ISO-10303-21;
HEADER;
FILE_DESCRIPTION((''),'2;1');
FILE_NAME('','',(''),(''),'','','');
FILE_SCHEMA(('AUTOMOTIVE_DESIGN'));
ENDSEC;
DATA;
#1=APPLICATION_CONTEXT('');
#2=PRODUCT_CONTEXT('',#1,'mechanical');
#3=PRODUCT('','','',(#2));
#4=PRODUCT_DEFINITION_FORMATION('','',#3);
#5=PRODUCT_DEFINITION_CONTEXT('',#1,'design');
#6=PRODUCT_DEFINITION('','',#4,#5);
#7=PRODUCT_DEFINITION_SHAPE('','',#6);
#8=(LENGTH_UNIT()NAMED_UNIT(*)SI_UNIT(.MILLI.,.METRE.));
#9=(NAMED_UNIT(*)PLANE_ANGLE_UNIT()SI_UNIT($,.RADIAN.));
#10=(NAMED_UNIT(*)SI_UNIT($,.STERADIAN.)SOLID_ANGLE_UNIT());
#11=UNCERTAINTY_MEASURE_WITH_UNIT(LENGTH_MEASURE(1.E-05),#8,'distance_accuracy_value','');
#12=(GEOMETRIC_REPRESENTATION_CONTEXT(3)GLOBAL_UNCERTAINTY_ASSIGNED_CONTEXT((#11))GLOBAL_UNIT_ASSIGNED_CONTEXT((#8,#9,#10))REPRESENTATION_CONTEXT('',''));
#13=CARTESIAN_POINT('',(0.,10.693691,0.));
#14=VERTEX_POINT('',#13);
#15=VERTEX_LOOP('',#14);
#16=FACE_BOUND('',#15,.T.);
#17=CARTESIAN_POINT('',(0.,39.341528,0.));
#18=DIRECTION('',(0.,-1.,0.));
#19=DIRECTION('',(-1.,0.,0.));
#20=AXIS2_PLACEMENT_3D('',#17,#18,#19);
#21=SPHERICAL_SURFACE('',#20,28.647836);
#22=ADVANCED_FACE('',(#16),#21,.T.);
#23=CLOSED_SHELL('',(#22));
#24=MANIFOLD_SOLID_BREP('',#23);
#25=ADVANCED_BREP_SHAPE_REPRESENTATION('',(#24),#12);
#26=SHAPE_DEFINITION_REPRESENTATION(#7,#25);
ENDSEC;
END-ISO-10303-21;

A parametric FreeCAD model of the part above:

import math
import FreeCAD as App
import Part
import Sketcher
from FreeCAD import Vector

doc = App.newDocument("Part")
params = doc.addObject("Spreadsheet::Sheet", "Params")
for row, (alias, value) in enumerate([
    ("revolution_angle", "360 deg"),
], start=1):
    params.set(f"A{row}", alias)
    params.set(f"B{row}", "=" + value)
    params.setAlias(f"B{row}", alias)

body = doc.addObject("PartDesign::Body", "Body")

sketch1 = body.newObject("Sketcher::SketchObject", "Sketch")
sketch1.AttachmentSupport = (doc.getObject("XY_Plane"), [""])
sketch1.MapMode = "FlatFace"
sketch1.addGeometry([
    Part.LineSegment(Vector(0, 68, 0), Vector(0, 11, 0)),
    Part.ArcOfCircle(Part.Circle(Vector(0, 39, 0), Vector(0, 0, 1), 29), math.radians(-90), math.radians(90)),
], False)
sketch1.addConstraint([
    Sketcher.Constraint("Coincident", 0, 1, 1, 2),
    Sketcher.Constraint("Coincident", 1, 1, 0, 2),
    Sketcher.Constraint("Vertical", 0),
    Sketcher.Constraint("PointOnObject", 1, 3, -2),
    Sketcher.Constraint("PointOnObject", 0, 1, -2),
    Sketcher.Constraint("Radius", 1, 28.647836),
    Sketcher.Constraint("DistanceY", -1, 1, 1, 1, 10.693691),
])
revolution = body.newObject("PartDesign::Revolution", "Revolution")
revolution.Profile = sketch1
revolution.ReferenceAxis = (sketch1, ["V_Axis"])
revolution.setExpression("Angle", "Params.revolution_angle")

doc.recompute()
